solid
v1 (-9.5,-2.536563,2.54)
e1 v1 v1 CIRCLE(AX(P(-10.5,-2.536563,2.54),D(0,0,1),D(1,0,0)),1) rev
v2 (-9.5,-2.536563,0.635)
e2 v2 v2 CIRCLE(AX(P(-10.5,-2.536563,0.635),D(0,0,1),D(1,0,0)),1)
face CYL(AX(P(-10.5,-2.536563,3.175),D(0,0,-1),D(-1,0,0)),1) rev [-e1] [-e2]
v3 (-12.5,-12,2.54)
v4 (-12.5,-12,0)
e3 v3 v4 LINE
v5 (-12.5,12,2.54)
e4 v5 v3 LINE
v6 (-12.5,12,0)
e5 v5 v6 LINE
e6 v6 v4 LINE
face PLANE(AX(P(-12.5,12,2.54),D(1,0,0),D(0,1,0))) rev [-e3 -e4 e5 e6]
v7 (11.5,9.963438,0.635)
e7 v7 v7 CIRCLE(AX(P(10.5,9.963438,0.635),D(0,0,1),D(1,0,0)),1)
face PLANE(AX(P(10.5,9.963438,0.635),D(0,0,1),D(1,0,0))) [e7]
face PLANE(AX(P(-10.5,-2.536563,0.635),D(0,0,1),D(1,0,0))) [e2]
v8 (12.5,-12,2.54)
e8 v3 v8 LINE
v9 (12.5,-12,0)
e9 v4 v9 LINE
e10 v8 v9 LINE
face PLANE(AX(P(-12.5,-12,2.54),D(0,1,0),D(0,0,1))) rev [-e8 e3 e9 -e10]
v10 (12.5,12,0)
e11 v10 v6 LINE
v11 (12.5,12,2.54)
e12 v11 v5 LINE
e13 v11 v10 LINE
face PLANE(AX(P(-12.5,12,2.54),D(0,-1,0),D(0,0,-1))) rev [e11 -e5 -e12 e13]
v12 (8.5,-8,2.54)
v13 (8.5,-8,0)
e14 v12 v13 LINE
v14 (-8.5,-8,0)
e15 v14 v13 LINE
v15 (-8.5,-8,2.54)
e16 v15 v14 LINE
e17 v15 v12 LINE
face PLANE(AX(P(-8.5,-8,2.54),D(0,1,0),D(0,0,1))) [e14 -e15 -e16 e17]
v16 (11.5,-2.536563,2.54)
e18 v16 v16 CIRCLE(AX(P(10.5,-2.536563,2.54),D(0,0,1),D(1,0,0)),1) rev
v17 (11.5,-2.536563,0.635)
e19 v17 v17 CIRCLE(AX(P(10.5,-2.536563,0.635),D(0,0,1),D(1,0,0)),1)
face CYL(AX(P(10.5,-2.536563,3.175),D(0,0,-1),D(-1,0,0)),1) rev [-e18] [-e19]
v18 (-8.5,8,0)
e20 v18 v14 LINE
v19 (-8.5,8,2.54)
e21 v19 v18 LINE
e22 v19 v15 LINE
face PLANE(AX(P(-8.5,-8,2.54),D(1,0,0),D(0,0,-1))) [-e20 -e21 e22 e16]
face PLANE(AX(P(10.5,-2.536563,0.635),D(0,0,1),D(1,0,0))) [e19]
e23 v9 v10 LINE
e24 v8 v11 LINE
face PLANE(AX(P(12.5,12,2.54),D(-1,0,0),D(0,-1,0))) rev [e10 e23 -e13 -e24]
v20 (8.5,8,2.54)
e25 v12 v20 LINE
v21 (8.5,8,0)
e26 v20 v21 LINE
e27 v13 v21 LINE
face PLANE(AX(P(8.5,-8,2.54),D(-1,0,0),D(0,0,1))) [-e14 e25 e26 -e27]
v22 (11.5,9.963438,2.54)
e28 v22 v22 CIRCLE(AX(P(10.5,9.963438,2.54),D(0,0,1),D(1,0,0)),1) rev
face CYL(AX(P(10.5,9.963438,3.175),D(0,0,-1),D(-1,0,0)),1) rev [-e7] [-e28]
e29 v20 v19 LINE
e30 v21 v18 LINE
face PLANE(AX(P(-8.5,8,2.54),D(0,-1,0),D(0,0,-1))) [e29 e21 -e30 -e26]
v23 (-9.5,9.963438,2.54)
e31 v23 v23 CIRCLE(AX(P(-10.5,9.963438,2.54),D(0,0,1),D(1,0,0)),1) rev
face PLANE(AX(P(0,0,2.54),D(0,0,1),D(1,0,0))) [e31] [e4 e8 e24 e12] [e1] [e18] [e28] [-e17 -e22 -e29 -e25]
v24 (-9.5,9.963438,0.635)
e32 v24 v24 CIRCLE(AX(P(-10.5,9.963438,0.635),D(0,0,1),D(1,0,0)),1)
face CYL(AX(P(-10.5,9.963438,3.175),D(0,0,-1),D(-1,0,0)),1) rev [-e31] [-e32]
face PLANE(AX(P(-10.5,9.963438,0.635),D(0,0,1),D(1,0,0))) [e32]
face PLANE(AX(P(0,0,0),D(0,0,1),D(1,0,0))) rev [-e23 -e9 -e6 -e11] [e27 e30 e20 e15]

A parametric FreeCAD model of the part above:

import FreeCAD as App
import Part
import Sketcher
Q = App.Units.Quantity


def add_polygon(sketch, points):
    """Adds a closed chain of lines whose ends are joined by coincident constraints."""
    first, n = sketch.GeometryCount, len(points)
    for a, b in zip(points, points[1:] + points[:1]):
        sketch.addGeometry(Part.LineSegment(App.Vector(*a, 0), App.Vector(*b, 0)), False)
    for i in range(n):
        sketch.addConstraint(Sketcher.Constraint("Coincident", first + i, 2, first + (i + 1) % n, 1))

doc = App.newDocument("Part")
body = doc.addObject("PartDesign::Body", "Body")

# Sketch on XY plane
sketch1 = body.newObject("Sketcher::SketchObject", "Sketch")
sketch1.AttachmentSupport = (doc.getObject("XY_Plane"), [""])
sketch1.MapMode = "FlatFace"
add_polygon(sketch1, [(-13, 12), (-13, -12), (13, -12), (13, 12)])  # lines 0-3
add_polygon(sketch1, [(9, -8), (-9, -8), (-9, 8), (9, 8)])  # lines 4-7
sketch1.addConstraint(Sketcher.Constraint("Vertical", 0))
sketch1.addConstraint(Sketcher.Constraint("Horizontal", 1))
sketch1.addConstraint(Sketcher.Constraint("Vertical", 2))
sketch1.addConstraint(Sketcher.Constraint("Horizontal", 3))
sketch1.addConstraint(Sketcher.Constraint("Horizontal", 4))
sketch1.addConstraint(Sketcher.Constraint("Vertical", 5))
sketch1.addConstraint(Sketcher.Constraint("Horizontal", 6))
sketch1.addConstraint(Sketcher.Constraint("Vertical", 7))
sketch1.addConstraint(Sketcher.Constraint("Symmetric", 0, 2, 2, 2, -1, 1))
sketch1.addConstraint(Sketcher.Constraint("Symmetric", 4, 2, 6, 2, -1, 1))
sketch1.addConstraint(Sketcher.Constraint("DistanceX", 1, 1, 1, 2, Q("25.000001 mm")))
sketch1.addConstraint(Sketcher.Constraint("DistanceX", 4, 2, 4, 1, Q("17.000001 mm")))
sketch1.addConstraint(Sketcher.Constraint("DistanceY", 0, 2, 0, 1, Q("24 mm")))
sketch1.addConstraint(Sketcher.Constraint("DistanceY", 5, 1, 5, 2, Q("16 mm")))
pad1 = body.newObject("PartDesign::Pad", "Pad")
pad1.Profile = sketch1
pad1.Length = 2.54

# Sketch on XY plane
sketch2 = body.newObject("Sketcher::SketchObject", "Sketch001")
sketch2.AttachmentSupport = (doc.getObject("XY_Plane"), [""])
sketch2.MapMode = "FlatFace"
sketch2.AttachmentOffset = App.Placement(App.Vector(0, 0, 0.635), App.Rotation())
sketch2.addGeometry(Part.Circle(App.Vector(-10.5, 10, 0), App.Vector(0, 0, 1), 1), False)
sketch2.addGeometry(Part.Circle(App.Vector(-10.5, -2.5, 0), App.Vector(0, 0, 1), 1), False)
sketch2.addGeometry(Part.Circle(App.Vector(10.5, 10, 0), App.Vector(0, 0, 1), 1), False)
sketch2.addGeometry(Part.Circle(App.Vector(10.5, -2.5, 0), App.Vector(0, 0, 1), 1), False)
sketch2.addConstraint(Sketcher.Constraint("Equal", 0, 1))
sketch2.addConstraint(Sketcher.Constraint("Equal", 1, 2))
sketch2.addConstraint(Sketcher.Constraint("Equal", 2, 3))
sketch2.addConstraint(Sketcher.Constraint("Symmetric", 0, 3, 2, 3, -2))
sketch2.addConstraint(Sketcher.Constraint("Symmetric", 1, 3, 3, 3, -2))
sketch2.addConstraint(Sketcher.Constraint("Vertical", 0, 3, 1, 3))
sketch2.addConstraint(Sketcher.Constraint("Diameter", 0, Q("2 mm")))
sketch2.addConstraint(Sketcher.Constraint("DistanceX", 0, 3, 2, 3, Q("21.000001 mm")))
sketch2.addConstraint(Sketcher.Constraint("DistanceY", 1, 3, 0, 3, Q("12.5 mm")))
sketch2.addConstraint(Sketcher.Constraint("DistanceY", -1, 1, 0, 3, Q("9.963438 mm")))
pocket1 = body.newObject("PartDesign::Pocket", "Pocket")
pocket1.Profile = sketch2
pocket1.Length = 2.54
pocket1.Reversed = True

doc.recompute()
